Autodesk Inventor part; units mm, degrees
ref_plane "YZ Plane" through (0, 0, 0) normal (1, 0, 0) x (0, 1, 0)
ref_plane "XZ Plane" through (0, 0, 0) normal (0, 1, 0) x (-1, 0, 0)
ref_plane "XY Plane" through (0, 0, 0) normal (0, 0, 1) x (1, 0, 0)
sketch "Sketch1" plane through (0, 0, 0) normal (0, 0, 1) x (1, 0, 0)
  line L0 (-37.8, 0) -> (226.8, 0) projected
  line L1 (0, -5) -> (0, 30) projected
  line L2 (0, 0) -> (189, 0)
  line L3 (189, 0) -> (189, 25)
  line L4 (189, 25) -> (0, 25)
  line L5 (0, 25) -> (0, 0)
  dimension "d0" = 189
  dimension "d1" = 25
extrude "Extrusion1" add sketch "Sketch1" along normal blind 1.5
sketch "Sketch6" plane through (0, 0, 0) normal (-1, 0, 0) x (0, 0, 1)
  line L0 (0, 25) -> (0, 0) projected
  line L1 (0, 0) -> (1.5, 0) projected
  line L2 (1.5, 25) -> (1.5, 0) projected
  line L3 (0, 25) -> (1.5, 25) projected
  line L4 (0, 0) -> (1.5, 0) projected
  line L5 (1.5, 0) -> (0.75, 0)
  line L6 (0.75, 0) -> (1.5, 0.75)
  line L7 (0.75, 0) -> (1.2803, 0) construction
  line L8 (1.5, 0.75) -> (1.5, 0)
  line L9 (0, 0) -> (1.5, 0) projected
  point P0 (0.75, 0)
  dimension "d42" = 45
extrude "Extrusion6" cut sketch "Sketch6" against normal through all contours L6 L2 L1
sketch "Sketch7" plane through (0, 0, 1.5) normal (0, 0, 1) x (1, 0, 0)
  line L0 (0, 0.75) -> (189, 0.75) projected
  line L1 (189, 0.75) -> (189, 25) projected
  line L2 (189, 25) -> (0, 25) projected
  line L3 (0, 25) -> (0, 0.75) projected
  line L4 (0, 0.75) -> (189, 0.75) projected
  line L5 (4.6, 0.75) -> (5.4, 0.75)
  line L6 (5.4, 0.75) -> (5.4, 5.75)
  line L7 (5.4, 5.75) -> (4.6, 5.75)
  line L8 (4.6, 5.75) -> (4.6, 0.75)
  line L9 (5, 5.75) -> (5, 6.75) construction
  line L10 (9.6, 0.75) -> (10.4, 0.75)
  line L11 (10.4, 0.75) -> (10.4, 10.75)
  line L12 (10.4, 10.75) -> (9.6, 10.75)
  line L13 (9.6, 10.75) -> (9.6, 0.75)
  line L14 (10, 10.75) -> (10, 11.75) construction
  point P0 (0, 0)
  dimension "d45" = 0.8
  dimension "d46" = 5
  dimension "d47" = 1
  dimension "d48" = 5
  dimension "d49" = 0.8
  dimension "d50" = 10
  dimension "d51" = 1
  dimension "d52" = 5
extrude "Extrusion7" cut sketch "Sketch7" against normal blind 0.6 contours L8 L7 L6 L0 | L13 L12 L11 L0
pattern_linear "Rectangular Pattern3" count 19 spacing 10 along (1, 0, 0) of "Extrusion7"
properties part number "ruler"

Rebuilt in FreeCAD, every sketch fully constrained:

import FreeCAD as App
import Part
import Sketcher


def add_polygon(sketch, points):
    """Adds a closed chain of lines whose ends are joined by coincident constraints."""
    first, n = sketch.GeometryCount, len(points)
    for a, b in zip(points, points[1:] + points[:1]):
        sketch.addGeometry(Part.LineSegment(App.Vector(*a, 0), App.Vector(*b, 0)), False)
    for i in range(n):
        sketch.addConstraint(Sketcher.Constraint("Coincident", first + i, 2, first + (i + 1) % n, 1))

doc = App.newDocument("Part")
params = doc.addObject("Spreadsheet::Sheet", "Params")
for row, (alias, value) in enumerate([
    ("sketch1_width", "189 mm"),
    ("sketch1_height", "25 mm"),
    ("pad1_length", "1.5 mm"),
    ("sketch2_width", "0.75 mm"),
    ("sketch3_height", "5 mm"),
    ("sketch3_height2", "10 mm"),
    ("sketch3_width", "0.8 mm"),
    ("pocket2_length", "0.6 mm"),
    ("linearpattern_pitch", "10 mm"),
], start=1):
    params.set(f"A{row}", alias)
    params.set(f"B{row}", "=" + value)
    params.setAlias(f"B{row}", alias)

body = doc.addObject("PartDesign::Body", "Body")

sketch1 = body.newObject("Sketcher::SketchObject", "Sketch")
sketch1.AttachmentSupport = (doc.getObject("XY_Plane"), [""])
sketch1.MapMode = "FlatFace"
add_polygon(sketch1, [(0, 25), (0, 0), (189, 0), (189, 25)])
sketch1.addConstraint([
    Sketcher.Constraint("Vertical", 0),
    Sketcher.Constraint("Horizontal", 1),
    Sketcher.Constraint("Vertical", 2),
    Sketcher.Constraint("Horizontal", 3),
    Sketcher.Constraint("Coincident", 0, 2, -1, 1),
    Sketcher.Constraint("DistanceX", 1, 1, 1, 2, 189.0),
    Sketcher.Constraint("DistanceY", 0, 2, 0, 1, 25.0),
])
sketch1.setExpression("Constraints[9]", "Params.sketch1_width")
sketch1.setExpression("Constraints[10]", "Params.sketch1_height")
pad1 = body.newObject("PartDesign::Pad", "Pad")
pad1.Profile = sketch1
pad1.setExpression("Length", "Params.pad1_length")

sketch2 = body.newObject("Sketcher::SketchObject", "Sketch001")
sketch2.AttachmentSupport = (doc.getObject("YZ_Plane"), [""])
sketch2.MapMode = "FlatFace"
add_polygon(sketch2, [(0.75, 1.5), (0, 0.75), (0, 1.5)])
sketch2.addConstraint([
    Sketcher.Constraint("Vertical", 1),
    Sketcher.Constraint("Horizontal", 2),
    Sketcher.Constraint("PointOnObject", 0, 2, -2),
    Sketcher.Constraint("Equal", 2, 1),
    Sketcher.Constraint("DistanceX", 2, 1, 2, 2, 0.75),
    Sketcher.Constraint("DistanceY", -1, 1, 1, 2, 1.5),
])
sketch2.setExpression("Constraints[7]", "Params.sketch2_width")
pocket1 = body.newObject("PartDesign::Pocket", "Pocket")
pocket1.Profile = sketch2
pocket1.Type = "ThroughAll"
pocket1.Reversed = True

sketch3 = body.newObject("Sketcher::SketchObject", "Sketch002")
sketch3.AttachmentSupport = (doc.getObject("XY_Plane"), [""])
sketch3.MapMode = "FlatFace"
sketch3.AttachmentOffset = App.Placement(App.Vector(0, 0, 1.5), App.Rotation())
add_polygon(sketch3, [(4.6, 5.75), (4.6, 0.75), (5.4, 0.75), (5.4, 5.75)])
add_polygon(sketch3, [(9.6, 10.75), (9.6, 0.75), (10.4, 0.75), (10.4, 10.75)])
sketch3.addConstraint([
    Sketcher.Constraint("Vertical", 0),
    Sketcher.Constraint("Horizontal", 1),
    Sketcher.Constraint("Vertical", 2),
    Sketcher.Constraint("Horizontal", 3),
    Sketcher.Constraint("Vertical", 4),
    Sketcher.Constraint("Horizontal", 5),
    Sketcher.Constraint("Vertical", 6),
    Sketcher.Constraint("Horizontal", 7),
    Sketcher.Constraint("Horizontal", 1, 2, 4, 2),
    Sketcher.Constraint("Equal", 3, 5),
    Sketcher.Constraint("DistanceY", 0, 2, 0, 1, 5.0),
    Sketcher.Constraint("DistanceY", 4, 2, 4, 1, 10.0),
    Sketcher.Constraint("DistanceX", 1, 1, 1, 2, 0.8),
    Sketcher.Constraint("DistanceX", 0, 2, 4, 2, 5.0),
    Sketcher.Constraint("DistanceX", -1, 1, 0, 2, 4.6),
    Sketcher.Constraint("DistanceY", -1, 1, 0, 2, 0.75),
])
sketch3.setExpression("Constraints[18]", "Params.sketch3_height")
sketch3.setExpression("Constraints[19]", "Params.sketch3_height2")
sketch3.setExpression("Constraints[20]", "Params.sketch3_width")
pocket2 = body.newObject("PartDesign::Pocket", "Pocket001")
pocket2.Profile = sketch3
pocket2.setExpression("Length", "Params.pocket2_length")
doc.recompute()

linearpattern = body.newObject("PartDesign::LinearPattern", "LinearPattern")
linearpattern.Originals = [pocket2]
linearpattern.Direction = (doc.getObject("X_Axis"), [""])
linearpattern.Mode = "offset"
linearpattern.setExpression("Offset", "Params.linearpattern_pitch")
linearpattern.Occurrences = 19
body.Tip = linearpattern

doc.recompute()
